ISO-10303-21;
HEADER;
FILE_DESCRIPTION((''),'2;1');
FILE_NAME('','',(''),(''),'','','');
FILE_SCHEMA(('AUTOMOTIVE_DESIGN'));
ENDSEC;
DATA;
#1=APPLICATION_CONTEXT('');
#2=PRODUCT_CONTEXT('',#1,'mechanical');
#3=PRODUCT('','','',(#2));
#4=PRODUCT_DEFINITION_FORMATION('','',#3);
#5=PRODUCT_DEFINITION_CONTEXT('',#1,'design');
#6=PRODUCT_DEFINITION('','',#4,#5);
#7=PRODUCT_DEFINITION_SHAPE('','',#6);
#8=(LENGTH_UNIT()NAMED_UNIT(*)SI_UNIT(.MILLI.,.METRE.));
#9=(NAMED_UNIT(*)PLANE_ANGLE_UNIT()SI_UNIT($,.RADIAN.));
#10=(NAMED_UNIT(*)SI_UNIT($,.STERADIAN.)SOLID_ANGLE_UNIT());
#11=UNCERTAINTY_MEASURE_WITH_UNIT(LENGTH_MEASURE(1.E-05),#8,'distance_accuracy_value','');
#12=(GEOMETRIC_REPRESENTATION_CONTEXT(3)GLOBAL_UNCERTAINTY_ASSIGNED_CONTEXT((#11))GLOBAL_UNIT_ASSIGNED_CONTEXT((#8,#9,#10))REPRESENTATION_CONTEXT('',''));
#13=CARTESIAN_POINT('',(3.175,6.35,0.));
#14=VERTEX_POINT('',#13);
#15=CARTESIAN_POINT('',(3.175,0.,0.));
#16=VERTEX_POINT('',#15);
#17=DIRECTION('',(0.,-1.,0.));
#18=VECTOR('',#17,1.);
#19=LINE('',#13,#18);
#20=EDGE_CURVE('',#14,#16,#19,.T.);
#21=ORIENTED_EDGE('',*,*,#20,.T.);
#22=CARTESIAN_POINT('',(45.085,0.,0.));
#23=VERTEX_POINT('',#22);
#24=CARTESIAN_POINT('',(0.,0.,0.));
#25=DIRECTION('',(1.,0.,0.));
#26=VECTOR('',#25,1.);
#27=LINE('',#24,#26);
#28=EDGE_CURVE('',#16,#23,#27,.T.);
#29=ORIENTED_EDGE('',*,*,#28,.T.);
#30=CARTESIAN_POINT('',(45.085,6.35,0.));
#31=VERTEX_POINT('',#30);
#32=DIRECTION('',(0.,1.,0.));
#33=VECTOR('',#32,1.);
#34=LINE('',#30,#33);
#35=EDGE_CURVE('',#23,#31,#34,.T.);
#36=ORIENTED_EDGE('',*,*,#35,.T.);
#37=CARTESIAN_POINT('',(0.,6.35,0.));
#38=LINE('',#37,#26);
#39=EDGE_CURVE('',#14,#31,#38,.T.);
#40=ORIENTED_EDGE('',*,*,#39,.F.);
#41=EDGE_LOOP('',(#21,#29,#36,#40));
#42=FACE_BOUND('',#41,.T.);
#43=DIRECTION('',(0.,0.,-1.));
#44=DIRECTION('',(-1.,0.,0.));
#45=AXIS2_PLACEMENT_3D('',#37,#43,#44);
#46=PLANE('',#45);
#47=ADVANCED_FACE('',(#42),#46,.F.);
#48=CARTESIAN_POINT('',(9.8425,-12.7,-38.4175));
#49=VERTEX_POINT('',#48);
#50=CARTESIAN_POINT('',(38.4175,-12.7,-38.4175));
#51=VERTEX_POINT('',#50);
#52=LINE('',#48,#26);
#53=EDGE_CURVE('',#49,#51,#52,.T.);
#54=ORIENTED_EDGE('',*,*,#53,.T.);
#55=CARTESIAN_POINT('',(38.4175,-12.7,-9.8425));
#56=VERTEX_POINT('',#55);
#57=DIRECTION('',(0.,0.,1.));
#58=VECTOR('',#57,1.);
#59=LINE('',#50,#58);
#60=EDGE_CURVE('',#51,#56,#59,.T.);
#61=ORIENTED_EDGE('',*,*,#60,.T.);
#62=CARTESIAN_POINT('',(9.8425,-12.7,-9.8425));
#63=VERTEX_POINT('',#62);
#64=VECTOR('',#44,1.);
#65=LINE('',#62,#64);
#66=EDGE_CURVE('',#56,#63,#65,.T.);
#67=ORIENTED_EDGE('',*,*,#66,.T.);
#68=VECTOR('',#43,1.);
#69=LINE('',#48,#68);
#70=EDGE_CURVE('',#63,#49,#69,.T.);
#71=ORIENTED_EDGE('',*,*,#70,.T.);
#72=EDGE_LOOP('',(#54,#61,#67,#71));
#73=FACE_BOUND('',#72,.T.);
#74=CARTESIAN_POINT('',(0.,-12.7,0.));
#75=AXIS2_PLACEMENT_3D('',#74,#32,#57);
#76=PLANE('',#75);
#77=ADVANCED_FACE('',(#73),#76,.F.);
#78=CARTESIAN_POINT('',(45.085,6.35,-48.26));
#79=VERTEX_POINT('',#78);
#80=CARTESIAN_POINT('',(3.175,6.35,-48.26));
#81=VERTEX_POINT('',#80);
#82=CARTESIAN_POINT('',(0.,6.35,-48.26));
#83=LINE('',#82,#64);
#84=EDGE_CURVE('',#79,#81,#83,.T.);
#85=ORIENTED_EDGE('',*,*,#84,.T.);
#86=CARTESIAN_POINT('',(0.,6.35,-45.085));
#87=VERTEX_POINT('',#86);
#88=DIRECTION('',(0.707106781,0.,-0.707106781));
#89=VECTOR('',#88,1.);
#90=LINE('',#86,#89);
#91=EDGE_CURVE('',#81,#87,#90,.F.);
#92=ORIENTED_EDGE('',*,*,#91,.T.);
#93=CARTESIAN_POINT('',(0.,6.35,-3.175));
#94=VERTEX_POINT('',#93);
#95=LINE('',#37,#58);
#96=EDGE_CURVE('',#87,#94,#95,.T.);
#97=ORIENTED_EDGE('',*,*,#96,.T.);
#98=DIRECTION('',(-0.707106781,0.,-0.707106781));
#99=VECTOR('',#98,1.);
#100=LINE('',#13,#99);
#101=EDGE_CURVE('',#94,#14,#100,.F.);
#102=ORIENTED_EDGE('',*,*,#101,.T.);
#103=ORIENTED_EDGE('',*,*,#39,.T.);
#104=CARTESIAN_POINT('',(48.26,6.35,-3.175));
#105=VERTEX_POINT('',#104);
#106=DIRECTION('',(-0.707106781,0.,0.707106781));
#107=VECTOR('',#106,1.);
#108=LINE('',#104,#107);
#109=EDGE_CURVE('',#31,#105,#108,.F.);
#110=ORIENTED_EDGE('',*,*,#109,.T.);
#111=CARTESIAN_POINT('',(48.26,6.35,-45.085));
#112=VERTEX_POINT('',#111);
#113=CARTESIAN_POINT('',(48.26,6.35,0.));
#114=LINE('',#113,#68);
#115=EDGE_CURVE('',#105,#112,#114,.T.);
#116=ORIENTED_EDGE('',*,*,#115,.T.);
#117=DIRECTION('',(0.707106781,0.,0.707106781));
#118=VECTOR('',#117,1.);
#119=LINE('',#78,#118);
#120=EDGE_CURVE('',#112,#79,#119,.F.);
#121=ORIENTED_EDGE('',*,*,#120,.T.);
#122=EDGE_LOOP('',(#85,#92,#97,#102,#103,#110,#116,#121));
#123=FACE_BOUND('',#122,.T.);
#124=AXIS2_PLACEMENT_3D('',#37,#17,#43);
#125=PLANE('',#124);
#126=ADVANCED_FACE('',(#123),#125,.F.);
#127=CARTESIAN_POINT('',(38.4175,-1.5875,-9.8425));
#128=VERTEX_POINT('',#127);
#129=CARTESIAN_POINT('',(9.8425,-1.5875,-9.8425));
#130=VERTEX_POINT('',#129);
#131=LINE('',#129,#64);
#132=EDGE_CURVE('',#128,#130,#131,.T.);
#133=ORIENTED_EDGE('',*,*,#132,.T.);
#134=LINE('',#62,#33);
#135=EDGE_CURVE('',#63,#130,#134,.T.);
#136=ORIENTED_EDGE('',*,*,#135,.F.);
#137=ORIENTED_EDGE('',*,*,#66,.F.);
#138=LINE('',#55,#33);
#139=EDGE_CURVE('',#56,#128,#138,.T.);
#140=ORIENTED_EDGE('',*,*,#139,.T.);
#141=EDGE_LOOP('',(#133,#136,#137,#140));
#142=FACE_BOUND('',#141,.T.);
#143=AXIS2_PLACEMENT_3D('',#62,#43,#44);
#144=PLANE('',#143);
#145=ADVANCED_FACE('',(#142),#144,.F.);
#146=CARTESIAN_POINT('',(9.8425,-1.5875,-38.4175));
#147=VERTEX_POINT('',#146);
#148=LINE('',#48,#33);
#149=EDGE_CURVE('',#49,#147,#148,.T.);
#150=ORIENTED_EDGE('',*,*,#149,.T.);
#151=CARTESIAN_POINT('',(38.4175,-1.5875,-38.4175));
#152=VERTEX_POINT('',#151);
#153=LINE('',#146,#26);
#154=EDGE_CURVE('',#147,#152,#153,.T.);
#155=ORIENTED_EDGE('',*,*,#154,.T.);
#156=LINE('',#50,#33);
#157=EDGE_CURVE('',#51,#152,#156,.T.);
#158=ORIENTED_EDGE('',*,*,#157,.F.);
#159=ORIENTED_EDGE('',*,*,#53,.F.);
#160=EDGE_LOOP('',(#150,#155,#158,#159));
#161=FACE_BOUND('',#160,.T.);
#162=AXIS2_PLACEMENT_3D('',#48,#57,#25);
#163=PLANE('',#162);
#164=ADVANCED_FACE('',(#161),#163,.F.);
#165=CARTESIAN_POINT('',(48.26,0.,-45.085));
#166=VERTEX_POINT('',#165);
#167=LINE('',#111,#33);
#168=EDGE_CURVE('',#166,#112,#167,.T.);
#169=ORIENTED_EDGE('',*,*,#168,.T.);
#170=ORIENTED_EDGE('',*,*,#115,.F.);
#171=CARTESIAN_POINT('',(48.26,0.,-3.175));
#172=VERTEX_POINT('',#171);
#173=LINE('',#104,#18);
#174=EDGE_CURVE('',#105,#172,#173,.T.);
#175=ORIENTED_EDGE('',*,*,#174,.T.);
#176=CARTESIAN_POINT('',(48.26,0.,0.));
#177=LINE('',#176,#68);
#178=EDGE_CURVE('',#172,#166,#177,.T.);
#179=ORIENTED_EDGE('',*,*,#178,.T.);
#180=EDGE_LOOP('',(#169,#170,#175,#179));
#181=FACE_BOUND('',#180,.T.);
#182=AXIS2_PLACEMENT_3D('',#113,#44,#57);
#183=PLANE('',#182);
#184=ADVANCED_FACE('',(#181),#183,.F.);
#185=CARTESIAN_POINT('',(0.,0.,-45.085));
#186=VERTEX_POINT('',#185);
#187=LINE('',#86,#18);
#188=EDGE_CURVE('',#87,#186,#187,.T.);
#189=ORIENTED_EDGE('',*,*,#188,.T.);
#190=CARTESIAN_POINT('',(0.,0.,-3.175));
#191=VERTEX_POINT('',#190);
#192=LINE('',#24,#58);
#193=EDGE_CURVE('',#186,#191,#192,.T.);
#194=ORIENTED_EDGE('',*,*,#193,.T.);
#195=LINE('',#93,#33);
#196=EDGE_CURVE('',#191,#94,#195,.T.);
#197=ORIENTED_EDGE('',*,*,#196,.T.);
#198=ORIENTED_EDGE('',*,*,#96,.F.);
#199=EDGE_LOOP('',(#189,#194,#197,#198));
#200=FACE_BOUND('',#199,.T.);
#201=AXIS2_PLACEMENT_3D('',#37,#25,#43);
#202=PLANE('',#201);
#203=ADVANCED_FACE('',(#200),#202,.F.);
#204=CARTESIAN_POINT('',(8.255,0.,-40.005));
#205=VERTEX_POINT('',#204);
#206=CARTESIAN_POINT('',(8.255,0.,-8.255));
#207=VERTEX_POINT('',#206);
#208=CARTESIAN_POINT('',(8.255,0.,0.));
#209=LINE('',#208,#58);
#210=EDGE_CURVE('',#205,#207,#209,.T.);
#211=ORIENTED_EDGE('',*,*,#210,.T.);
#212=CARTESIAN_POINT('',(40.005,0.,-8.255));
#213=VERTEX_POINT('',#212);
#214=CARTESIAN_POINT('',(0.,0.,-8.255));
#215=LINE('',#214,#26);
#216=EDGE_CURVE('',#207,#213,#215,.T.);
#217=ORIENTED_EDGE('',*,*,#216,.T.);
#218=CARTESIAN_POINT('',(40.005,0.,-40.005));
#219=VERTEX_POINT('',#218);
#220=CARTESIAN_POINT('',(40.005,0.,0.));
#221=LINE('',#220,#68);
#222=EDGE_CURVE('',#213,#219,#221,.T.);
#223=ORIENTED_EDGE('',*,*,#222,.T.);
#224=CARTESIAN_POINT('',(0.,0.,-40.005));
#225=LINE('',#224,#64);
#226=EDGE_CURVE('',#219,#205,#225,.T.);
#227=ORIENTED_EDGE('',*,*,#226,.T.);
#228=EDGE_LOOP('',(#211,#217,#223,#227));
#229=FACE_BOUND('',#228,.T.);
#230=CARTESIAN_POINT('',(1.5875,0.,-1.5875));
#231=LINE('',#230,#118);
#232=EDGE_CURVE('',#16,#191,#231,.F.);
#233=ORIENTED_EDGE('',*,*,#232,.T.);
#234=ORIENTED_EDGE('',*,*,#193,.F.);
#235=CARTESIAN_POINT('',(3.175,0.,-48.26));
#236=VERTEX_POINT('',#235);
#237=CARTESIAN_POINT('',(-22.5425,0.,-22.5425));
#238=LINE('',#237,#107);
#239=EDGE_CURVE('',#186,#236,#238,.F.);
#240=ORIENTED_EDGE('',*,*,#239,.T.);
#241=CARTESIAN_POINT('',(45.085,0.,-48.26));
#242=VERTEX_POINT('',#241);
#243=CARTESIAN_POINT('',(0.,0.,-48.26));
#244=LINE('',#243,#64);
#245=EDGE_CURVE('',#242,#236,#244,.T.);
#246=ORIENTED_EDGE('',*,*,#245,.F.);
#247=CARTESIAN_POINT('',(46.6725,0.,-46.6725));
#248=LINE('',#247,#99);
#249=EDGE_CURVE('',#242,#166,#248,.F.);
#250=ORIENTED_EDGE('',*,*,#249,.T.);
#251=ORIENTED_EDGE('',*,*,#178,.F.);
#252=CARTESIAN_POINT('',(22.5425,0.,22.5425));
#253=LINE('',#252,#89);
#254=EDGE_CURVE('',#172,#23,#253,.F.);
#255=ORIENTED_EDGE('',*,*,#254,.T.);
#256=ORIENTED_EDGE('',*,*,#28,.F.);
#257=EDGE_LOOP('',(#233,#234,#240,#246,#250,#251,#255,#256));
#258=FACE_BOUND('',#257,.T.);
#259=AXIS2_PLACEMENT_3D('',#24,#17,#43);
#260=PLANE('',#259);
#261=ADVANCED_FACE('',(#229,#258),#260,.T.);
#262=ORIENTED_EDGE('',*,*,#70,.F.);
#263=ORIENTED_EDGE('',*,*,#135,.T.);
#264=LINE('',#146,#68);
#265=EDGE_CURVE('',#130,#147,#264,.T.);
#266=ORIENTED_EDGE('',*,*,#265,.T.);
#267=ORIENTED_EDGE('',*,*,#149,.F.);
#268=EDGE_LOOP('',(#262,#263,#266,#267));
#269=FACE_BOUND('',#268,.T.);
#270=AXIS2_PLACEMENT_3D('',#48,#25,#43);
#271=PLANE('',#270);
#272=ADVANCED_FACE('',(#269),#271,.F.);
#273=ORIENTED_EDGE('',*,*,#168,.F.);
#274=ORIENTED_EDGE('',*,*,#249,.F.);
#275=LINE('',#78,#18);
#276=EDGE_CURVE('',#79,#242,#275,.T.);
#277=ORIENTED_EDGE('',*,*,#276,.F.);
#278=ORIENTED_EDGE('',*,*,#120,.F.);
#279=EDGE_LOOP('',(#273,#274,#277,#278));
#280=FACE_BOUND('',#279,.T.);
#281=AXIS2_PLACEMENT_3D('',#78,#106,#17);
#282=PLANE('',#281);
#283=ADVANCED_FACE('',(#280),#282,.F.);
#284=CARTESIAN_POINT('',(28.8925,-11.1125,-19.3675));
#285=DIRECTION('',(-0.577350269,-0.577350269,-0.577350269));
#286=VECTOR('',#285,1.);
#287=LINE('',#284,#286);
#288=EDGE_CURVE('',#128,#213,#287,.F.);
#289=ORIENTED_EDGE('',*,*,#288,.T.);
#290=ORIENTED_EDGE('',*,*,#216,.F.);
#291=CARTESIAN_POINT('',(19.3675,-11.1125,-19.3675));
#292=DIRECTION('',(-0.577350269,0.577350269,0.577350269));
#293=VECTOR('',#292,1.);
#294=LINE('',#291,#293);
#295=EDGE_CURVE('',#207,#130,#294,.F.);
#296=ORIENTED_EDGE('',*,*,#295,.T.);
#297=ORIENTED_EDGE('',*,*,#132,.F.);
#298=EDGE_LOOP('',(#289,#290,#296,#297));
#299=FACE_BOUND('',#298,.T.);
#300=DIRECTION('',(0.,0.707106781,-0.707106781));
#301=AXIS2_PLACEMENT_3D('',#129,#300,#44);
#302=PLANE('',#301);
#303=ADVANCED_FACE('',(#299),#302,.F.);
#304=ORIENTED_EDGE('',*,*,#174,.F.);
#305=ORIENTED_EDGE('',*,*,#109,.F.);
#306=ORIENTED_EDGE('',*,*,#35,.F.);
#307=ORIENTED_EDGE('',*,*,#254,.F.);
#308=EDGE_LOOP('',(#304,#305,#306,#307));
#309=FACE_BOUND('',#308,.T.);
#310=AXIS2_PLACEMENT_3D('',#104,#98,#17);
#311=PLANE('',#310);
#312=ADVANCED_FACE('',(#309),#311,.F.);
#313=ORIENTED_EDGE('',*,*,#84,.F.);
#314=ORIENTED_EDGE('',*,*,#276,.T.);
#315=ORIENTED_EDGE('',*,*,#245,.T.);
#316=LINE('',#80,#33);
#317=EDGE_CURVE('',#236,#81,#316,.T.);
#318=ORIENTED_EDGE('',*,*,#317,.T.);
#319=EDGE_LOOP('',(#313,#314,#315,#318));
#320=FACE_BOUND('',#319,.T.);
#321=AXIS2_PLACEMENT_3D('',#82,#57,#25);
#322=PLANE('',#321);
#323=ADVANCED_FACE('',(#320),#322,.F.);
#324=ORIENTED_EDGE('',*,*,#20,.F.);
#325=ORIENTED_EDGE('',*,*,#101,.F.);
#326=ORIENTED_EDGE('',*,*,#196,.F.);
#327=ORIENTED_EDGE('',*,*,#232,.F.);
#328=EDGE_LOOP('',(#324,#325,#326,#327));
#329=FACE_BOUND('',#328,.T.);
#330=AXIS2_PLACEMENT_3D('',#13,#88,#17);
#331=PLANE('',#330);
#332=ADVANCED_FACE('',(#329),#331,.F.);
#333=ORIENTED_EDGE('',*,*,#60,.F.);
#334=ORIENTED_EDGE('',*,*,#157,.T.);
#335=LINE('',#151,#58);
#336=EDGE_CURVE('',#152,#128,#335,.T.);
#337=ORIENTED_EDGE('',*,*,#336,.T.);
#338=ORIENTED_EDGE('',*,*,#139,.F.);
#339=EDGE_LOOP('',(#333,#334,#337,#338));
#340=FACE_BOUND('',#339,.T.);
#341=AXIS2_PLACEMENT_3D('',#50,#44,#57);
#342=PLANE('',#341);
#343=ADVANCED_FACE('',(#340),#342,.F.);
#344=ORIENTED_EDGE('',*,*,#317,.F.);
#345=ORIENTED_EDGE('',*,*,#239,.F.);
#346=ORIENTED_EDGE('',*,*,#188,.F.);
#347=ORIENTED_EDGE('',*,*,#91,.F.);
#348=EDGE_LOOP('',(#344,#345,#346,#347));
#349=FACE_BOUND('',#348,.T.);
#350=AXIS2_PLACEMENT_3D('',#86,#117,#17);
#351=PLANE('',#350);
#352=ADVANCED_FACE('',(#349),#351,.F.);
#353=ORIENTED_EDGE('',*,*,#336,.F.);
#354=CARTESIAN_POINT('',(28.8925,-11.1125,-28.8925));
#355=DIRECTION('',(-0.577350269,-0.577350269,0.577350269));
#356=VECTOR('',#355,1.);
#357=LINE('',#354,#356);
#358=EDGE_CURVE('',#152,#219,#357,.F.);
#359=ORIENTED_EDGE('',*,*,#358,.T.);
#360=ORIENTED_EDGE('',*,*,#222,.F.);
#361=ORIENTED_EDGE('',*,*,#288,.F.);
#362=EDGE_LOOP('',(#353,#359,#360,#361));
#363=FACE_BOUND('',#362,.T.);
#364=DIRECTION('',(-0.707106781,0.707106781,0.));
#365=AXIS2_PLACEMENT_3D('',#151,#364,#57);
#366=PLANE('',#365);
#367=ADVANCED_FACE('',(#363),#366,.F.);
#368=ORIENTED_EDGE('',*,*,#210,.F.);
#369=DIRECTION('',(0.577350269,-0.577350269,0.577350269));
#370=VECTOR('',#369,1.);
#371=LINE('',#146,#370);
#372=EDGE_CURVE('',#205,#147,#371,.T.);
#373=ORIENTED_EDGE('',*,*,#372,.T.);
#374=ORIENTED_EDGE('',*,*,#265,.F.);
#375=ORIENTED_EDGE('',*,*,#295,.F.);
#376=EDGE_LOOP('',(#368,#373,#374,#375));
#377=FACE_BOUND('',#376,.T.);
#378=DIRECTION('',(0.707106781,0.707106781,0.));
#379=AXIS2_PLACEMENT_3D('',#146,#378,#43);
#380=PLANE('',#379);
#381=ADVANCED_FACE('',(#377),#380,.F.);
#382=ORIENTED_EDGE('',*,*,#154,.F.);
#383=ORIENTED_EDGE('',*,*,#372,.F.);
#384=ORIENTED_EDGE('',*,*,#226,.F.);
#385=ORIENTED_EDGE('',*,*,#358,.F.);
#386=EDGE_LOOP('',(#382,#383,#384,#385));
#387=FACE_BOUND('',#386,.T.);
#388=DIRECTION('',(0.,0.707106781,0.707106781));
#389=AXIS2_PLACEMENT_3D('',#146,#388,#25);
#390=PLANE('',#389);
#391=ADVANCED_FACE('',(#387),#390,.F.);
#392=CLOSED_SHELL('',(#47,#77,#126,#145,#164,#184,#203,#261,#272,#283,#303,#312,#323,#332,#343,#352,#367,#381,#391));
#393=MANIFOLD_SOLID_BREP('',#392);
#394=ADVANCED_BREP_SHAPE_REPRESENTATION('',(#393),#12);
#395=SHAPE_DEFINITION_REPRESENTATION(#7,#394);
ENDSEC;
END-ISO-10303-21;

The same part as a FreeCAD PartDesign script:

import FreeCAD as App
import Part
import Sketcher
Q = App.Units.Quantity


def edges_at(feature, points):
    """Names of the edges that pass closest to the given points."""
    edges = feature.Shape.Edges
    near = lambda p: min(range(len(edges)), key=lambda i: edges[i].distToShape(Part.Vertex(*p))[0])
    return sorted({f"Edge{near(p) + 1}" for p in points})

doc = App.newDocument("Part")
body = doc.addObject("PartDesign::Body", "Body")

sketch1 = body.newObject("Sketcher::SketchObject", "Sketch")
sketch1.AttachmentSupport = (doc.getObject("XZ_Plane"), [""])
sketch1.MapMode = "FlatFace"
sketch1.addGeometry([
    Part.LineSegment(App.Vector(0, -48, 0), App.Vector(0, 0, 0)),
    Part.LineSegment(App.Vector(0, 0, 0), App.Vector(48, 0, 0)),
    Part.LineSegment(App.Vector(48, 0, 0), App.Vector(48, -48, 0)),
    Part.LineSegment(App.Vector(48, -48, 0), App.Vector(0, -48, 0)),
], False)
sketch1.addConstraint([
    Sketcher.Constraint("Coincident", 0, 2, 1, 1),
    Sketcher.Constraint("Coincident", 1, 2, 2, 1),
    Sketcher.Constraint("Coincident", 2, 2, 3, 1),
    Sketcher.Constraint("Coincident", 3, 2, 0, 1),
    Sketcher.Constraint("Vertical", 0),
    Sketcher.Constraint("Horizontal", 1),
    Sketcher.Constraint("Vertical", 2),
    Sketcher.Constraint("Horizontal", 3),
    Sketcher.Constraint("Coincident", 0, 2, -1, 1),
    Sketcher.Constraint("Equal", 3, 0),
    Sketcher.Constraint("DistanceX", 1, 1, 1, 2, Q("1.9 in")),
])
pad1 = body.newObject("PartDesign::Pad", "Pad")
pad1.Profile = sketch1
pad1.Length = Q("0.25 in")
pad1.Reversed = True
doc.recompute()

chamfer = body.newObject("PartDesign::Chamfer", "Chamfer")
chamfer.Base = (pad1, edges_at(pad1, [
    (0, 3.175, -48.26),
    (48.26, 3.175, -48.26),
    (48.26, 3.175, 0),
    (0, 3.175, 0),
]))
chamfer.Size = Q("0.125 in")

sketch2 = body.newObject("Sketcher::SketchObject", "Sketch001")
sketch2.AttachmentSupport = (doc.getObject("XZ_Plane"), [""])
sketch2.MapMode = "FlatFace"
sketch2.addGeometry([
    Part.LineSegment(App.Vector(10, -10, 0), App.Vector(10, -38, 0)),
    Part.LineSegment(App.Vector(10, -38, 0), App.Vector(38, -38, 0)),
    Part.LineSegment(App.Vector(38, -38, 0), App.Vector(38, -10, 0)),
    Part.LineSegment(App.Vector(38, -10, 0), App.Vector(10, -10, 0)),
], False)
sketch2.addConstraint([
    Sketcher.Constraint("Coincident", 0, 2, 1, 1),
    Sketcher.Constraint("Coincident", 1, 2, 2, 1),
    Sketcher.Constraint("Coincident", 2, 2, 3, 1),
    Sketcher.Constraint("Coincident", 3, 2, 0, 1),
    Sketcher.Constraint("Vertical", 0),
    Sketcher.Constraint("Horizontal", 1),
    Sketcher.Constraint("Vertical", 2),
    Sketcher.Constraint("Horizontal", 3),
    Sketcher.Constraint("Equal", 3, 0),
    Sketcher.Constraint("DistanceX", 1, 1, 1, 2, Q("1.125 in")),
    Sketcher.Constraint("DistanceX", -1, 1, 0, 2, Q("0.3875 in")),
    Sketcher.Constraint("DistanceY", 0, 2, -1, 1, Q("1.5125 in")),
])
pad2 = body.newObject("PartDesign::Pad", "Pad001")
pad2.Profile = sketch2
pad2.Length = Q("0.5 in")
doc.recompute()

chamfer2 = body.newObject("PartDesign::Chamfer", "Chamfer001")
chamfer2.Base = (pad2, edges_at(pad2, [
    (38.417, 0, -24.13),
    (24.13, 0, -9.842),
    (9.842, 0, -24.13),
    (24.13, 0, -38.417),
]))
chamfer2.Size = Q("0.0625 in")

doc.recompute()
